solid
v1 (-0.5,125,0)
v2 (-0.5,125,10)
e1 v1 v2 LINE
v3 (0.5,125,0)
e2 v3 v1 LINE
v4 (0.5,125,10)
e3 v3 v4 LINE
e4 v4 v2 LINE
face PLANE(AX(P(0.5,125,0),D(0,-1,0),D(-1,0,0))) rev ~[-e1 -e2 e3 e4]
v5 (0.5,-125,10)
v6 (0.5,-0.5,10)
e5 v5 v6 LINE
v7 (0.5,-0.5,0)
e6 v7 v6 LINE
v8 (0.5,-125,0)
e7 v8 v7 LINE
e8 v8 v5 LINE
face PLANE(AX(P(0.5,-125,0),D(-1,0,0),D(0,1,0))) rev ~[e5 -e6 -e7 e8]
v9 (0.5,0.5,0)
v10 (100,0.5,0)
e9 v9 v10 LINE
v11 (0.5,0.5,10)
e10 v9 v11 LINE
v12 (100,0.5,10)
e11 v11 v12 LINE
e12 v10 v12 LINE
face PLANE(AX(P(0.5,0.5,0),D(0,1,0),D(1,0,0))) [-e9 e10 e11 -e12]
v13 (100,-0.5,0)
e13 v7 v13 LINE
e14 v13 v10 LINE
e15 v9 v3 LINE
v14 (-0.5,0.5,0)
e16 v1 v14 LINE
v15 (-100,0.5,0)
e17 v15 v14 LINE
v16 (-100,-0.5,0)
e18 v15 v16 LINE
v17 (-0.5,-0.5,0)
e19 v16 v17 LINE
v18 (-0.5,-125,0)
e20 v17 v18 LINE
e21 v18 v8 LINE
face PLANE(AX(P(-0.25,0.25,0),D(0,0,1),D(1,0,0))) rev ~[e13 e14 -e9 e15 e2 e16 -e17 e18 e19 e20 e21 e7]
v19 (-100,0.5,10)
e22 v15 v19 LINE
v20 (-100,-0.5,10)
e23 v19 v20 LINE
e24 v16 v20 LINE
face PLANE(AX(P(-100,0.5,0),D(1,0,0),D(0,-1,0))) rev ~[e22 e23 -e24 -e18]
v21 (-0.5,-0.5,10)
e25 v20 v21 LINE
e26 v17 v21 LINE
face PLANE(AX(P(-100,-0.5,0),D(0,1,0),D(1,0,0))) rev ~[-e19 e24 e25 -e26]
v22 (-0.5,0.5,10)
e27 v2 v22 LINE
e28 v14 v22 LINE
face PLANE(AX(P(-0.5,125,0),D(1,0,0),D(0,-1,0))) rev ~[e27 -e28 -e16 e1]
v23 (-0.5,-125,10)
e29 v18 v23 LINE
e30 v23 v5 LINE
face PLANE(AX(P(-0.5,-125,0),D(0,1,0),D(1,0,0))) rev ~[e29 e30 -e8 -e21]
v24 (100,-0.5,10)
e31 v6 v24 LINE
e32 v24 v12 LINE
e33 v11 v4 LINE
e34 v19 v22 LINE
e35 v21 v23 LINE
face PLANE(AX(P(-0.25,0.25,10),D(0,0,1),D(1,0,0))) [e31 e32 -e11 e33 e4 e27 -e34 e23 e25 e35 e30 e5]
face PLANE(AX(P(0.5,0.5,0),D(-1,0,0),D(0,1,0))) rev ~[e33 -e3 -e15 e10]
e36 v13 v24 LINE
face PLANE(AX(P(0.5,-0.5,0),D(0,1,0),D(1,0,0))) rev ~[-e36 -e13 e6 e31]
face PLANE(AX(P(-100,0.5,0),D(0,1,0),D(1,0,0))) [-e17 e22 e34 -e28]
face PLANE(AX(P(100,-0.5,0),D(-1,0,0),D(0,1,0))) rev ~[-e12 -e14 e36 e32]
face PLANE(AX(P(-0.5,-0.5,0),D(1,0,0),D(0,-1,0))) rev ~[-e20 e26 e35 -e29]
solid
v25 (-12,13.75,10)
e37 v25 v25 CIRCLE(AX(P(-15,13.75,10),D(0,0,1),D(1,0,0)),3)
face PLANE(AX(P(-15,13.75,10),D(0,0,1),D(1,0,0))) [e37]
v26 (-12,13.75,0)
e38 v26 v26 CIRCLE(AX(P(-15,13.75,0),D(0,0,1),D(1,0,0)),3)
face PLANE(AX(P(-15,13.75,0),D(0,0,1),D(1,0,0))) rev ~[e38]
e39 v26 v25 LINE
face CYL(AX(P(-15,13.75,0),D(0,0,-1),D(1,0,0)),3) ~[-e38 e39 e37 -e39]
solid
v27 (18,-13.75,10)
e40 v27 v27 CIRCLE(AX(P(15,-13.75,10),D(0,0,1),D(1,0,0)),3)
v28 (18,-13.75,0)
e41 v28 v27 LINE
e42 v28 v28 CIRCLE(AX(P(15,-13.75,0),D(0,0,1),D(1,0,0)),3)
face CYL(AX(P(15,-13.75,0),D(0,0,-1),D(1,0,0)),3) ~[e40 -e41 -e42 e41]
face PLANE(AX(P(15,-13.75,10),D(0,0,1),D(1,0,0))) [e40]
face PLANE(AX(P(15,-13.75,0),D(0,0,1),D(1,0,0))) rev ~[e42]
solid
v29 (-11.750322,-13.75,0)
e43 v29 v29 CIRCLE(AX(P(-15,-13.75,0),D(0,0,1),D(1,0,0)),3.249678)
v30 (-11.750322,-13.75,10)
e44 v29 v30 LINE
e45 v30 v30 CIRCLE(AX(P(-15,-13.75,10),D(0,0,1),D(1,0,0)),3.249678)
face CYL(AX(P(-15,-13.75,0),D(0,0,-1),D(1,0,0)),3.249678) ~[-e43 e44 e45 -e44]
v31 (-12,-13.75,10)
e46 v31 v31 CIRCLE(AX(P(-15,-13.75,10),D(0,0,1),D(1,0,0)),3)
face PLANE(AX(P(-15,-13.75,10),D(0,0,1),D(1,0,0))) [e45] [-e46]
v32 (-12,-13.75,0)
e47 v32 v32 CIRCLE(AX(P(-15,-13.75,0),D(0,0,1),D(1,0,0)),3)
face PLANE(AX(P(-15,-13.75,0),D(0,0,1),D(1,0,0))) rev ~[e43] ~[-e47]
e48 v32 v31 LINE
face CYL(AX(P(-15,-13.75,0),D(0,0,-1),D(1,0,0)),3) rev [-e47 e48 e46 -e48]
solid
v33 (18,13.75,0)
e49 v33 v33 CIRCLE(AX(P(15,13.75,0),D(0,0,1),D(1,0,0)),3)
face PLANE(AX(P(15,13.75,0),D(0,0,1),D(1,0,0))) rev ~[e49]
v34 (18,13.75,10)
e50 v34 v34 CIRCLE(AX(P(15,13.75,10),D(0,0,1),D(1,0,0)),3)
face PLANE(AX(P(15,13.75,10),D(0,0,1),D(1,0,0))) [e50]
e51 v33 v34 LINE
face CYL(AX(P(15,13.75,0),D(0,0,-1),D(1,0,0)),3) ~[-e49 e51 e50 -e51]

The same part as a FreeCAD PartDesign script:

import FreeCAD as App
import Part
import Sketcher
from FreeCAD import Vector


def add_polygon(sketch, points):
    """Adds a closed chain of lines whose ends are joined by coincident constraints."""
    first, n = sketch.GeometryCount, len(points)
    for a, b in zip(points, points[1:] + points[:1]):
        sketch.addGeometry(Part.LineSegment(App.Vector(*a, 0), App.Vector(*b, 0)), False)
    for i in range(n):
        sketch.addConstraint(Sketcher.Constraint("Coincident", first + i, 2, first + (i + 1) % n, 1))

doc = App.newDocument("Part")
params = doc.addObject("Spreadsheet::Sheet", "Params")
for row, (alias, value) in enumerate([
    ("sketch1_diameter", "6 mm"),
    ("pad1_length", "10 mm"),
    ("sketch2_diameter", "6 mm"),
    ("pad2_length", "10 mm"),
    ("sketch3_diameter", "6 mm"),
    ("pad3_length", "10 mm"),
    ("sketch4_diameter", "6 mm"),
    ("pad4_length", "10 mm"),
    ("sketch5_width", "1 mm"),
    ("sketch5_width2", "99.5 mm"),
    ("sketch5_height", "124.5 mm"),
    ("pad5_length", "10 mm"),
], start=1):
    params.set(f"A{row}", alias)
    params.set(f"B{row}", "=" + value)
    params.setAlias(f"B{row}", alias)

body = doc.addObject("PartDesign::Body", "Body")

# Sketch on XY plane
sketch1 = doc.addObject("Sketcher::SketchObject", "Sketch")
body.addObject(sketch1)
sketch1.AttachmentSupport = (doc.XY_Plane, [""])
sketch1.MapMode = "FlatFace"
sketch1.addGeometry(Part.Circle(Vector(-15, 13.8, 0), Vector(0, 0, 1), 3), False)
sketch1.addConstraint(Sketcher.Constraint("Diameter", 0, 6.0))
sketch1.addConstraint(Sketcher.Constraint("DistanceX", 0, 3, -1, 1, 15.0))
sketch1.addConstraint(Sketcher.Constraint("DistanceY", -1, 1, 0, 3, 13.75))
sketch1.setExpression("Constraints[0]", "Params.sketch1_diameter")
pad1 = doc.addObject("PartDesign::Pad", "Pad")
body.addObject(pad1)
pad1.Profile = sketch1
pad1.setExpression("Length", "Params.pad1_length")
body2 = doc.addObject("PartDesign::Body", "Body001")

# Sketch on XY plane
sketch2 = doc.addObject("Sketcher::SketchObject", "Sketch001")
body2.addObject(sketch2)
sketch2.AttachmentSupport = (doc.getObject("XY_Plane001"), [""])
sketch2.MapMode = "FlatFace"
sketch2.addGeometry(Part.Circle(Vector(-15, -13.8, 0), Vector(0, 0, 1), 3.2), False)
sketch2.addGeometry(Part.Circle(Vector(-15, -13.8, 0), Vector(0, 0, 1), 3), False)
sketch2.addConstraint(Sketcher.Constraint("Coincident", 1, 3, 0, 3))
sketch2.addConstraint(Sketcher.Constraint("Diameter", 1, 6.0))
sketch2.addConstraint(Sketcher.Constraint("DistanceX", 0, 3, -1, 1, 15.0))
sketch2.addConstraint(Sketcher.Constraint("DistanceY", 0, 3, -1, 1, 13.75))
sketch2.addConstraint(Sketcher.Constraint("Diameter", 0, 6.499356))
sketch2.setExpression("Constraints[1]", "Params.sketch2_diameter")
pad2 = doc.addObject("PartDesign::Pad", "Pad001")
body2.addObject(pad2)
pad2.Profile = sketch2
pad2.setExpression("Length", "Params.pad2_length")
body3 = doc.addObject("PartDesign::Body", "Body002")

# Sketch on XY plane
sketch3 = doc.addObject("Sketcher::SketchObject", "Sketch002")
body3.addObject(sketch3)
sketch3.AttachmentSupport = (doc.getObject("XY_Plane002"), [""])
sketch3.MapMode = "FlatFace"
sketch3.addGeometry(Part.Circle(Vector(15, 13.8, 0), Vector(0, 0, 1), 3), False)
sketch3.addConstraint(Sketcher.Constraint("Diameter", 0, 6.0))
sketch3.addConstraint(Sketcher.Constraint("DistanceX", -1, 1, 0, 3, 15.0))
sketch3.addConstraint(Sketcher.Constraint("DistanceY", -1, 1, 0, 3, 13.75))
sketch3.setExpression("Constraints[0]", "Params.sketch3_diameter")
pad3 = doc.addObject("PartDesign::Pad", "Pad002")
body3.addObject(pad3)
pad3.Profile = sketch3
pad3.setExpression("Length", "Params.pad3_length")
body4 = doc.addObject("PartDesign::Body", "Body003")

# Sketch on XY plane
sketch4 = doc.addObject("Sketcher::SketchObject", "Sketch003")
body4.addObject(sketch4)
sketch4.AttachmentSupport = (doc.getObject("XY_Plane003"), [""])
sketch4.MapMode = "FlatFace"
sketch4.addGeometry(Part.Circle(Vector(15, -13.8, 0), Vector(0, 0, 1), 3), False)
sketch4.addConstraint(Sketcher.Constraint("Diameter", 0, 6.0))
sketch4.addConstraint(Sketcher.Constraint("DistanceX", -1, 1, 0, 3, 15.0))
sketch4.addConstraint(Sketcher.Constraint("DistanceY", 0, 3, -1, 1, 13.75))
sketch4.setExpression("Constraints[0]", "Params.sketch4_diameter")
pad4 = doc.addObject("PartDesign::Pad", "Pad003")
body4.addObject(pad4)
pad4.Profile = sketch4
pad4.setExpression("Length", "Params.pad4_length")
body5 = doc.addObject("PartDesign::Body", "Body004")

# Sketch on XY plane
sketch5 = doc.addObject("Sketcher::SketchObject", "Sketch004")
body5.addObject(sketch5)
sketch5.AttachmentSupport = (doc.getObject("XY_Plane004"), [""])
sketch5.MapMode = "FlatFace"
add_polygon(sketch5, [(0.5, 125), (-0.5, 125), (-0.5, 0.5), (-100, 0.5), (-100, -0.5), (-0.5, -0.5), (-0.5, -125), (0.5, -125), (0.5, -0.5), (100, -0.5), (100, 0.5), (0.5, 0.5)])  # lines 0-11
sketch5.addConstraint(Sketcher.Constraint("Horizontal", 0))
sketch5.addConstraint(Sketcher.Constraint("Vertical", 1))
sketch5.addConstraint(Sketcher.Constraint("Horizontal", 2))
sketch5.addConstraint(Sketcher.Constraint("Vertical", 3))
sketch5.addConstraint(Sketcher.Constraint("Horizontal", 4))
sketch5.addConstraint(Sketcher.Constraint("Vertical", 5))
sketch5.addConstraint(Sketcher.Constraint("Horizontal", 6))
sketch5.addConstraint(Sketcher.Constraint("Vertical", 7))
sketch5.addConstraint(Sketcher.Constraint("Horizontal", 8))
sketch5.addConstraint(Sketcher.Constraint("Vertical", 9))
sketch5.addConstraint(Sketcher.Constraint("Horizontal", 10))
sketch5.addConstraint(Sketcher.Constraint("Vertical", 11))
sketch5.addConstraint(Sketcher.Constraint("Symmetric", 0, 2, 6, 2, -1, 1))
sketch5.addConstraint(Sketcher.Constraint("Symmetric", 2, 2, 8, 2, -1, 1))
sketch5.addConstraint(Sketcher.Constraint("Symmetric", 4, 2, 10, 2, -1, 1))
sketch5.addConstraint(Sketcher.Constraint("Symmetric", 4, 2, 7, 2, -2))
sketch5.addConstraint(Sketcher.Constraint("Equal", 6, 3))
sketch5.addConstraint(Sketcher.Constraint("DistanceX", 0, 2, 0, 1, 1.0))
sketch5.addConstraint(Sketcher.Constraint("DistanceX", 2, 2, 2, 1, 99.5))
sketch5.addConstraint(Sketcher.Constraint("DistanceY", 1, 2, 1, 1, 124.5))
sketch5.setExpression("Constraints[29]", "Params.sketch5_width")
sketch5.setExpression("Constraints[30]", "Params.sketch5_width2")
sketch5.setExpression("Constraints[31]", "Params.sketch5_height")
pad5 = doc.addObject("PartDesign::Pad", "Pad004")
body5.addObject(pad5)
pad5.Profile = sketch5
pad5.setExpression("Length", "Params.pad5_length")

doc.recompute()
